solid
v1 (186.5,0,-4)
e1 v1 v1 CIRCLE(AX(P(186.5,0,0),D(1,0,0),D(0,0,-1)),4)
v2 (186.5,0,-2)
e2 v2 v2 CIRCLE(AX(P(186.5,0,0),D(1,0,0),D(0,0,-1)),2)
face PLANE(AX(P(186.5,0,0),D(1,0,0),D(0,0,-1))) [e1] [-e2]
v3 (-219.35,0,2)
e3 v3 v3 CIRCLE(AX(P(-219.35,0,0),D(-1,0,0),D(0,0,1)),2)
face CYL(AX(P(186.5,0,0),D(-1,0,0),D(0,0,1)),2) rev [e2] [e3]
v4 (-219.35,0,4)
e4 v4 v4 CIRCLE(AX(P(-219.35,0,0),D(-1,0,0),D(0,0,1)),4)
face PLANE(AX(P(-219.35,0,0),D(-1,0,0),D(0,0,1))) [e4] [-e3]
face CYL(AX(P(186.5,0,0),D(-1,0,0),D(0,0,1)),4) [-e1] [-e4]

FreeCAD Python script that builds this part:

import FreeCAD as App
import Part
import Sketcher
Q = App.Units.Quantity

doc = App.newDocument("Part")
params = doc.addObject("Spreadsheet::Sheet", "Params")
for row, (alias, value) in enumerate([
    ("sketch1_diameter", "8 mm"),
    ("sketch1_diameter2", "4 mm"),
    ("pad1_length", "373 mm"),
    ("sketch2_diameter", "8 mm"),
    ("sketch2_diameter2", "4 mm"),
    ("pad2_length", "32.85 mm"),
], start=1):
    params.set(f"A{row}", alias)
    params.set(f"B{row}", "=" + value)
    params.setAlias(f"B{row}", alias)

body = doc.addObject("PartDesign::Body", "Body")

sketch1 = body.newObject("Sketcher::SketchObject", "Sketch")
sketch1.AttachmentSupport = (doc.getObject("YZ_Plane"), [""])
sketch1.MapMode = "FlatFace"
sketch1.addGeometry(Part.Circle(App.Vector(0, 0, 0), App.Vector(0, 0, 1), 4), False)
sketch1.addGeometry(Part.Circle(App.Vector(0, 0, 0), App.Vector(0, 0, 1), 2), False)
sketch1.addConstraint(Sketcher.Constraint("Coincident", 0, 3, -1, 1))
sketch1.addConstraint(Sketcher.Constraint("Coincident", 1, 3, -1, 1))
sketch1.addConstraint(Sketcher.Constraint("Diameter", 0, Q("8 mm")))
sketch1.addConstraint(Sketcher.Constraint("Diameter", 1, Q("4 mm")))
sketch1.setExpression("Constraints[2]", "Params.sketch1_diameter")
sketch1.setExpression("Constraints[3]", "Params.sketch1_diameter2")
pad1 = body.newObject("PartDesign::Pad", "Pad")
pad1.Profile = sketch1
pad1.setExpression("Length", "Params.pad1_length")
pad1.Midplane = True

sketch2 = body.newObject("Sketcher::SketchObject", "Sketch001")
sketch2.AttachmentSupport = (doc.getObject("YZ_Plane"), [""])
sketch2.MapMode = "FlatFace"
sketch2.AttachmentOffset = App.Placement(App.Vector(0, 0, -186.5), App.Rotation())
sketch2.addGeometry(Part.Circle(App.Vector(0, 0, 0), App.Vector(0, 0, 1), 4), False)
sketch2.addGeometry(Part.Circle(App.Vector(0, 0, 0), App.Vector(0, 0, 1), 2), False)
sketch2.addConstraint(Sketcher.Constraint("Coincident", 0, 3, -1, 1))
sketch2.addConstraint(Sketcher.Constraint("Coincident", 1, 3, -1, 1))
sketch2.addConstraint(Sketcher.Constraint("Diameter", 0, Q("8 mm")))
sketch2.addConstraint(Sketcher.Constraint("Diameter", 1, Q("4 mm")))
sketch2.setExpression("Constraints[2]", "Params.sketch2_diameter")
sketch2.setExpression("Constraints[3]", "Params.sketch2_diameter2")
pad2 = body.newObject("PartDesign::Pad", "Pad001")
pad2.Profile = sketch2
pad2.setExpression("Length", "Params.pad2_length")
pad2.Reversed = True

doc.recompute()
